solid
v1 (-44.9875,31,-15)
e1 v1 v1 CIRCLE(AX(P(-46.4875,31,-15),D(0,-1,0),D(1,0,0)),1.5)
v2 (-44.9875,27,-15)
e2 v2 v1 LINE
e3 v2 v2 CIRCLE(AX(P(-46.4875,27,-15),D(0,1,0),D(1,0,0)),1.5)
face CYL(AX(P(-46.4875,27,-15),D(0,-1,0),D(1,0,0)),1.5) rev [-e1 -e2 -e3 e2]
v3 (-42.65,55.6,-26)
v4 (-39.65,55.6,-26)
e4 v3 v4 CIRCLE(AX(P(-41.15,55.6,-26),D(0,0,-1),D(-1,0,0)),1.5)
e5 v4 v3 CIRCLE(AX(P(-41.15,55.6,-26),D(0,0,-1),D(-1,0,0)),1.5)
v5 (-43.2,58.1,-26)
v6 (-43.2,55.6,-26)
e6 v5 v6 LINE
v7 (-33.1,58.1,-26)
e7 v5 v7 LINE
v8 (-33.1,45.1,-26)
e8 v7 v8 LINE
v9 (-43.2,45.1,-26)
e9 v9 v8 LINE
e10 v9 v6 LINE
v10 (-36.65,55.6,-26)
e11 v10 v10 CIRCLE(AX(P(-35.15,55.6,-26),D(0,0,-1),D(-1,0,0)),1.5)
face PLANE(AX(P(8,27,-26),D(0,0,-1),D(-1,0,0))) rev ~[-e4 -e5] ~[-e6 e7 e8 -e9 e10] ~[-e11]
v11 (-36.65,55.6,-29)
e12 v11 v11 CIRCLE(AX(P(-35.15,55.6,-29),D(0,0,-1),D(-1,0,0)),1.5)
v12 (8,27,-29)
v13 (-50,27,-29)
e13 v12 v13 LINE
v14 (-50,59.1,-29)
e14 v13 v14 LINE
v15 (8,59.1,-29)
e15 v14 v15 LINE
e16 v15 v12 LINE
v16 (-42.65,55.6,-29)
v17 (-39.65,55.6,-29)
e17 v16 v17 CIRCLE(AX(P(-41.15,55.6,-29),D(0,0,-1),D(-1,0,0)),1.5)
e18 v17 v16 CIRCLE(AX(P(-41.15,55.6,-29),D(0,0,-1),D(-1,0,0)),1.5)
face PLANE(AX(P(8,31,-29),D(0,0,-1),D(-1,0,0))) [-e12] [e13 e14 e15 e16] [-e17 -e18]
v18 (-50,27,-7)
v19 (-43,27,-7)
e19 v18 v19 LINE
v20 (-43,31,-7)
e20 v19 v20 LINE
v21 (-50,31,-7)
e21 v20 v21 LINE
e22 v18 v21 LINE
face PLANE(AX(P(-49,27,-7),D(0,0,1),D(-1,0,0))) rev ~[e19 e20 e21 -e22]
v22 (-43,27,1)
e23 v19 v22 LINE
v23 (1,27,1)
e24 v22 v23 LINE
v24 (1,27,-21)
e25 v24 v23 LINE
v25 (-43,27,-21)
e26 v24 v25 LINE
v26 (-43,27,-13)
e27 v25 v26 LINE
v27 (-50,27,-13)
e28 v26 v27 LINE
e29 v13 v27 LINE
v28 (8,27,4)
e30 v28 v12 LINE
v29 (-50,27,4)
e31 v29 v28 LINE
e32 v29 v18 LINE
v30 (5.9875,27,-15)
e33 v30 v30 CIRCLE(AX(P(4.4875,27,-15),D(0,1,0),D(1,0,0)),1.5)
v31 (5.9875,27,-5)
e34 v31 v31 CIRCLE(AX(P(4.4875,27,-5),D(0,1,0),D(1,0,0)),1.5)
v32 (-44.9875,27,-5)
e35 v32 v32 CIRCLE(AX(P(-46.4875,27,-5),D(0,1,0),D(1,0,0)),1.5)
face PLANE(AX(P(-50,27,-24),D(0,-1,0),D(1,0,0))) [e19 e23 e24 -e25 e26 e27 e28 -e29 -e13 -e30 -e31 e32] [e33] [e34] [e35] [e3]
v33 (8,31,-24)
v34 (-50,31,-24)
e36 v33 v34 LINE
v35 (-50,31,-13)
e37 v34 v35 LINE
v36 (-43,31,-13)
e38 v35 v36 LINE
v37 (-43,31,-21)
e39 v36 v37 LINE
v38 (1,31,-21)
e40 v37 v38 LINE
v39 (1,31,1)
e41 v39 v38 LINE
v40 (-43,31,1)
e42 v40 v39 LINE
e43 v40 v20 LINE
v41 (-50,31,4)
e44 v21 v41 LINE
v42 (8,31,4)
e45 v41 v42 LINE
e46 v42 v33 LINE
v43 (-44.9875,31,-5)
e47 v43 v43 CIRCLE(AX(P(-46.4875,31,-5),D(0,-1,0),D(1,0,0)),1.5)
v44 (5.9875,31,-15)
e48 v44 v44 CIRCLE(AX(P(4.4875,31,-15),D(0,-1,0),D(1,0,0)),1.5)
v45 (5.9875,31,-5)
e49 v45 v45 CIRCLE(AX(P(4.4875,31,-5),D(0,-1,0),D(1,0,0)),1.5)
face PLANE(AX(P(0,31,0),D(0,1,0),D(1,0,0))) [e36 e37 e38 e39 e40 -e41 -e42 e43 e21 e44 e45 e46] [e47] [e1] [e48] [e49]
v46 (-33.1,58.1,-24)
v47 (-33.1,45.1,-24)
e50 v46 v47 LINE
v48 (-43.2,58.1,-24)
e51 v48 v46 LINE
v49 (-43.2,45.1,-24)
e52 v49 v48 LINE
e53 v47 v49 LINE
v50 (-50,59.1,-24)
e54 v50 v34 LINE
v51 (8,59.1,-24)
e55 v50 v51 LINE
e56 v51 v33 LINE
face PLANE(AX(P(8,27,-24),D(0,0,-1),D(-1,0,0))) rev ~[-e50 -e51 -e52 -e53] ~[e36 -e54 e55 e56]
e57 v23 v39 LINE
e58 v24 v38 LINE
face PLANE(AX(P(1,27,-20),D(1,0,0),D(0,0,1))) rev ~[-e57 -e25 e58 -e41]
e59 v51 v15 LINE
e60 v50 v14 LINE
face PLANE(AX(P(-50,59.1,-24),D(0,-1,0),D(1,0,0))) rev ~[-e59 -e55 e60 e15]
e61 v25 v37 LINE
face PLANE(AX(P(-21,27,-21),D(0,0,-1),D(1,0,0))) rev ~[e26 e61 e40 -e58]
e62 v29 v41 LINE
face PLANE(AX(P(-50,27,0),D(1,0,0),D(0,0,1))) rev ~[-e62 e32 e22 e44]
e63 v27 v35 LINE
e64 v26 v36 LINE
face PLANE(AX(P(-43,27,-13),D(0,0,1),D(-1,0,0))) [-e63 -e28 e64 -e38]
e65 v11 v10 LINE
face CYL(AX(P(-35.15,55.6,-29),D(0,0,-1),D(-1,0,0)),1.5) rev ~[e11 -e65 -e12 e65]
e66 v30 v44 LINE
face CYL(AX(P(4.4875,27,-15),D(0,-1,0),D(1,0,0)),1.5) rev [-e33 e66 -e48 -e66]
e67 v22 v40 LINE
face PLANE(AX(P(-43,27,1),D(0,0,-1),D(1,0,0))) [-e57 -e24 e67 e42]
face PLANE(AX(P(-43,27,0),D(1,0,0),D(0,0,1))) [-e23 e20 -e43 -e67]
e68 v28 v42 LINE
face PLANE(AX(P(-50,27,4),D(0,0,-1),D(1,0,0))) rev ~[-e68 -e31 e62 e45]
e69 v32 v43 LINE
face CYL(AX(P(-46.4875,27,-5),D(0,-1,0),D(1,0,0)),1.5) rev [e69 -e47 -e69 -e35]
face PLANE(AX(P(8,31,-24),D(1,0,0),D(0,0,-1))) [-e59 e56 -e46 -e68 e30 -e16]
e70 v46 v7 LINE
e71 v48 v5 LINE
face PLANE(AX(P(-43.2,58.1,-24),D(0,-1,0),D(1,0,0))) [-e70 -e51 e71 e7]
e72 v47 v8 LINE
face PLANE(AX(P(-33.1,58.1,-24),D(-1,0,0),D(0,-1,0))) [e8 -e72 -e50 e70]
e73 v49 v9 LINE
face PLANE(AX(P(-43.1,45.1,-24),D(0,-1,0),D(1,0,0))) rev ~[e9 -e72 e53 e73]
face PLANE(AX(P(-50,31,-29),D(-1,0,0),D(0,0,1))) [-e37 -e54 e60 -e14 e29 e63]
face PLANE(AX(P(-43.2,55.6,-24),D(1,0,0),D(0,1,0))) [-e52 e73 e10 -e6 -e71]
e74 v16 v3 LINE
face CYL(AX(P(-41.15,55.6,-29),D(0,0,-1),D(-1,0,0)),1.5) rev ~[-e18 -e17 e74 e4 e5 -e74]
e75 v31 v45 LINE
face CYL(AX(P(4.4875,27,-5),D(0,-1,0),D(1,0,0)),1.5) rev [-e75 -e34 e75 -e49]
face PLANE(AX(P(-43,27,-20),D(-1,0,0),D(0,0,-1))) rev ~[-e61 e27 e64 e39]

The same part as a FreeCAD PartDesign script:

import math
import FreeCAD as App
import Part
import Sketcher
from FreeCAD import Vector
Q = App.Units.Quantity


def add_polygon(sketch, points):
    """Adds a closed chain of lines whose ends are joined by coincident constraints."""
    first, n = sketch.GeometryCount, len(points)
    for a, b in zip(points, points[1:] + points[:1]):
        sketch.addGeometry(Part.LineSegment(App.Vector(*a, 0), App.Vector(*b, 0)), False)
    for i in range(n):
        sketch.addConstraint(Sketcher.Constraint("Coincident", first + i, 2, first + (i + 1) % n, 1))

doc = App.newDocument("Part")
body = doc.addObject("PartDesign::Body", "Body")
body.AllowCompound = True

# Sketch on XZ plane
sketch1 = body.newObject("Sketcher::SketchObject", "Sketch")
sketch1.AttachmentSupport = (doc.getObject("XZ_Plane"), [""])
sketch1.MapMode = "FlatFace"
sketch1.AttachmentOffset = App.Placement(Vector(0, 0, -27), App.Rotation())
add_polygon(sketch1, [(1, 1), (-43, 1), (-43, -7), (-50, -7), (-50, 4), (8, 4), (8, -24), (-50, -24), (-50, -13), (-43, -13), (-43, -21), (1, -21)])  # lines 0-11
sketch1.addGeometry(Part.Circle(Vector(4.5, -15, 0), Vector(0, 0, 1), 1.5), False)  # 12
sketch1.addGeometry(Part.Circle(Vector(4.5, -5, 0), Vector(0, 0, 1), 1.5), False)  # 13
sketch1.addGeometry(Part.Circle(Vector(-46.5, -15, 0), Vector(0, 0, 1), 1.5), False)  # 14
sketch1.addGeometry(Part.Circle(Vector(-46.5, -5, 0), Vector(0, 0, 1), 1.5), False)  # 15
sketch1.addConstraint([
    Sketcher.Constraint("Horizontal", 0),
    Sketcher.Constraint("Vertical", 1),
    Sketcher.Constraint("Horizontal", 2),
    Sketcher.Constraint("Vertical", 3),
    Sketcher.Constraint("Horizontal", 4),
    Sketcher.Constraint("Vertical", 5),
    Sketcher.Constraint("Horizontal", 6),
    Sketcher.Constraint("Vertical", 7),
    Sketcher.Constraint("Horizontal", 8),
    Sketcher.Constraint("Vertical", 9),
    Sketcher.Constraint("Horizontal", 10),
    Sketcher.Constraint("Vertical", 11),
    Sketcher.Constraint("Equal", 12, 13),
    Sketcher.Constraint("Equal", 13, 14),
    Sketcher.Constraint("Equal", 14, 15),
    Sketcher.Constraint("Horizontal", 12, 3, 14, 3),
    Sketcher.Constraint("Horizontal", 13, 3, 15, 3),
    Sketcher.Constraint("Vertical", 12, 3, 13, 3),
    Sketcher.Constraint("Vertical", 14, 3, 15, 3),
    Sketcher.Constraint("Vertical", 3, 2, 6, 2),
    Sketcher.Constraint("Vertical", 1, 2, 8, 2),
    Sketcher.Constraint("Equal", 3, 7),
    Sketcher.Constraint("Equal", 1, 9),
    Sketcher.Constraint("Diameter", 12, Q("3 mm")),
    Sketcher.Constraint("DistanceX", 2, 2, 2, 1, Q("7 mm")),
    Sketcher.Constraint("DistanceY", 13, 3, -1, 1, Q("5 mm")),
    Sketcher.Constraint("DistanceY", -1, 1, 0, 2, Q("1 mm")),
    Sketcher.Constraint("DistanceY", 1, 2, -1, 1, Q("7 mm")),
    Sketcher.Constraint("DistanceY", -1, 1, 3, 2, Q("4 mm")),
    Sketcher.Constraint("DistanceX", -1, 1, 10, 2, Q("1 mm")),
    Sketcher.Constraint("DistanceY", 14, 3, 7, 2, Q("2 mm")),
    Sketcher.Constraint("DistanceX", 10, 2, 5, 2, Q("7 mm")),
    Sketcher.Constraint("DistanceX", 0, 2, 0, 1, Q("44 mm")),
    Sketcher.Constraint("DistanceY", 5, 2, 5, 1, Q("28 mm")),
    Sketcher.Constraint("DistanceX", 14, 3, 12, 3, Q("50.975 mm")),
    Sketcher.Constraint("DistanceX", -1, 1, 12, 3, Q("4.4875 mm")),
])
pad1 = body.newObject("PartDesign::Pad", "Pad")
pad1.Profile = sketch1
pad1.Length = 4
pad1.Reversed = True

# Sketch on XY plane
sketch2 = body.newObject("Sketcher::SketchObject", "Sketch001")
sketch2.AttachmentSupport = (doc.getObject("XY_Plane"), [""])
sketch2.MapMode = "FlatFace"
sketch2.AttachmentOffset = App.Placement(Vector(0, 0, -24), App.Rotation())
add_polygon(sketch2, [(8, 31), (-50, 31), (-50, 59), (8, 59)])  # lines 0-3
add_polygon(sketch2, [(-43, 58), (-43, 45), (-33, 45), (-33, 58)])  # lines 4-7
sketch2.addConstraint([
    Sketcher.Constraint("Horizontal", 0),
    Sketcher.Constraint("Vertical", 1),
    Sketcher.Constraint("Horizontal", 2),
    Sketcher.Constraint("Vertical", 3),
    Sketcher.Constraint("Vertical", 4),
    Sketcher.Constraint("Horizontal", 5),
    Sketcher.Constraint("Vertical", 6),
    Sketcher.Constraint("Horizontal", 7),
    Sketcher.Constraint("DistanceY", 4, 2, 4, 1, Q("13 mm")),
    Sketcher.Constraint("DistanceX", 5, 1, 5, 2, Q("10.1 mm")),
    Sketcher.Constraint("DistanceY", 4, 2, 1, 2, Q("14 mm")),
    Sketcher.Constraint("DistanceY", 0, 2, 4, 2, Q("14.1 mm")),
    Sketcher.Constraint("DistanceX", 0, 2, 0, 1, Q("58 mm")),
    Sketcher.Constraint("DistanceX", 0, 2, -1, 1, Q("50 mm")),
    Sketcher.Constraint("DistanceY", -1, 1, 0, 2, Q("31 mm")),
    Sketcher.Constraint("DistanceX", 4, 2, -1, 1, Q("43.2 mm")),
])
pad2 = body.newObject("PartDesign::Pad", "Pad001")
pad2.Profile = sketch2
pad2.Length = 5
pad2.Reversed = True

# Sketch on XY plane
sketch3 = body.newObject("Sketcher::SketchObject", "Sketch002")
sketch3.AttachmentSupport = (doc.getObject("XY_Plane"), [""])
sketch3.MapMode = "FlatFace"
sketch3.AttachmentOffset = App.Placement(Vector(0, 0, -29), App.Rotation())
add_polygon(sketch3, [(-33.1, 45.1), (-43.2, 45.1), (-43.2, 55.6), (-43.2, 58.1), (-33.1, 58.1)])  # lines 0-4
sketch3.addGeometry(Part.Circle(Vector(-35.1, 55.6, 0), Vector(0, 0, 1), 1.5), False)  # 5
sketch3.addGeometry(Part.ArcOfCircle(Part.Circle(Vector(-41.1, 55.6, 0), Vector(0, 0, 1), 1.5), math.radians(0), math.radians(180)), False)  # 6
sketch3.addGeometry(Part.ArcOfCircle(Part.Circle(Vector(-41.1, 55.6, 0), Vector(0, 0, 1), 1.5), math.radians(180), math.radians(360)), False)  # 7
sketch3.addConstraint([
    Sketcher.Constraint("Tangent", 6, 1, 7, 2),
    Sketcher.Constraint("Coincident", 7, 1, 6, 2),
    Sketcher.Constraint("Horizontal", 0),
    Sketcher.Constraint("Vertical", 1),
    Sketcher.Constraint("Vertical", 2),
    Sketcher.Constraint("Horizontal", 3),
    Sketcher.Constraint("Vertical", 4),
    Sketcher.Constraint("Equal", 5, 6),
    Sketcher.Constraint("Horizontal", 5, 3, 6, 3),
    Sketcher.Constraint("Horizontal", 7, 3, 1, 2),
    Sketcher.Constraint("Horizontal", 1, 2, 6, 1),
    Sketcher.Constraint("Horizontal", 6, 1, 7, 1),
    Sketcher.Constraint("Diameter", 5, Q("3 mm")),
    Sketcher.Constraint("DistanceY", 1, 1, 1, 2, Q("10.5 mm")),
    Sketcher.Constraint("DistanceX", 6, 3, 5, 3, Q("6 mm")),
    Sketcher.Constraint("DistanceY", 4, 2, 4, 1, Q("13 mm")),
    Sketcher.Constraint("DistanceX", 0, 2, 6, 3, Q("2.05 mm")),
    Sketcher.Constraint("DistanceX", 5, 3, 3, 2, Q("2.05 mm")),
    Sketcher.Constraint("DistanceY", -1, 1, 5, 3, Q("55.6 mm")),
    Sketcher.Constraint("DistanceX", 0, 2, -1, 1, Q("43.2 mm")),
])
pad3 = body.newObject("PartDesign::Pad", "Pad002")
pad3.Profile = sketch3
pad3.Length = 3

# Sketch on XZ plane
sketch4 = body.newObject("Sketcher::SketchObject", "Sketch003")
sketch4.AttachmentSupport = (doc.getObject("XZ_Plane"), [""])
sketch4.MapMode = "FlatFace"
sketch4.AttachmentOffset = App.Placement(Vector(0, 0, -31), App.Rotation())
add_polygon(sketch4, [(-50, -29), (8, -29), (8, -24), (-50, -24)])  # lines 0-3
sketch4.addConstraint([
    Sketcher.Constraint("Horizontal", 0),
    Sketcher.Constraint("Vertical", 1),
    Sketcher.Constraint("Horizontal", 2),
    Sketcher.Constraint("Vertical", 3),
    Sketcher.Constraint("DistanceX", 0, 1, 0, 2, Q("58 mm")),
    Sketcher.Constraint("DistanceY", 1, 1, 1, 2, Q("5 mm")),
    Sketcher.Constraint("DistanceX", -1, 1, 0, 2, Q("8 mm")),
    Sketcher.Constraint("DistanceY", 0, 2, -1, 1, Q("29 mm")),
])
pad4 = body.newObject("PartDesign::Pad", "Pad003")
pad4.Profile = sketch4
pad4.Length = 4

doc.recompute()
